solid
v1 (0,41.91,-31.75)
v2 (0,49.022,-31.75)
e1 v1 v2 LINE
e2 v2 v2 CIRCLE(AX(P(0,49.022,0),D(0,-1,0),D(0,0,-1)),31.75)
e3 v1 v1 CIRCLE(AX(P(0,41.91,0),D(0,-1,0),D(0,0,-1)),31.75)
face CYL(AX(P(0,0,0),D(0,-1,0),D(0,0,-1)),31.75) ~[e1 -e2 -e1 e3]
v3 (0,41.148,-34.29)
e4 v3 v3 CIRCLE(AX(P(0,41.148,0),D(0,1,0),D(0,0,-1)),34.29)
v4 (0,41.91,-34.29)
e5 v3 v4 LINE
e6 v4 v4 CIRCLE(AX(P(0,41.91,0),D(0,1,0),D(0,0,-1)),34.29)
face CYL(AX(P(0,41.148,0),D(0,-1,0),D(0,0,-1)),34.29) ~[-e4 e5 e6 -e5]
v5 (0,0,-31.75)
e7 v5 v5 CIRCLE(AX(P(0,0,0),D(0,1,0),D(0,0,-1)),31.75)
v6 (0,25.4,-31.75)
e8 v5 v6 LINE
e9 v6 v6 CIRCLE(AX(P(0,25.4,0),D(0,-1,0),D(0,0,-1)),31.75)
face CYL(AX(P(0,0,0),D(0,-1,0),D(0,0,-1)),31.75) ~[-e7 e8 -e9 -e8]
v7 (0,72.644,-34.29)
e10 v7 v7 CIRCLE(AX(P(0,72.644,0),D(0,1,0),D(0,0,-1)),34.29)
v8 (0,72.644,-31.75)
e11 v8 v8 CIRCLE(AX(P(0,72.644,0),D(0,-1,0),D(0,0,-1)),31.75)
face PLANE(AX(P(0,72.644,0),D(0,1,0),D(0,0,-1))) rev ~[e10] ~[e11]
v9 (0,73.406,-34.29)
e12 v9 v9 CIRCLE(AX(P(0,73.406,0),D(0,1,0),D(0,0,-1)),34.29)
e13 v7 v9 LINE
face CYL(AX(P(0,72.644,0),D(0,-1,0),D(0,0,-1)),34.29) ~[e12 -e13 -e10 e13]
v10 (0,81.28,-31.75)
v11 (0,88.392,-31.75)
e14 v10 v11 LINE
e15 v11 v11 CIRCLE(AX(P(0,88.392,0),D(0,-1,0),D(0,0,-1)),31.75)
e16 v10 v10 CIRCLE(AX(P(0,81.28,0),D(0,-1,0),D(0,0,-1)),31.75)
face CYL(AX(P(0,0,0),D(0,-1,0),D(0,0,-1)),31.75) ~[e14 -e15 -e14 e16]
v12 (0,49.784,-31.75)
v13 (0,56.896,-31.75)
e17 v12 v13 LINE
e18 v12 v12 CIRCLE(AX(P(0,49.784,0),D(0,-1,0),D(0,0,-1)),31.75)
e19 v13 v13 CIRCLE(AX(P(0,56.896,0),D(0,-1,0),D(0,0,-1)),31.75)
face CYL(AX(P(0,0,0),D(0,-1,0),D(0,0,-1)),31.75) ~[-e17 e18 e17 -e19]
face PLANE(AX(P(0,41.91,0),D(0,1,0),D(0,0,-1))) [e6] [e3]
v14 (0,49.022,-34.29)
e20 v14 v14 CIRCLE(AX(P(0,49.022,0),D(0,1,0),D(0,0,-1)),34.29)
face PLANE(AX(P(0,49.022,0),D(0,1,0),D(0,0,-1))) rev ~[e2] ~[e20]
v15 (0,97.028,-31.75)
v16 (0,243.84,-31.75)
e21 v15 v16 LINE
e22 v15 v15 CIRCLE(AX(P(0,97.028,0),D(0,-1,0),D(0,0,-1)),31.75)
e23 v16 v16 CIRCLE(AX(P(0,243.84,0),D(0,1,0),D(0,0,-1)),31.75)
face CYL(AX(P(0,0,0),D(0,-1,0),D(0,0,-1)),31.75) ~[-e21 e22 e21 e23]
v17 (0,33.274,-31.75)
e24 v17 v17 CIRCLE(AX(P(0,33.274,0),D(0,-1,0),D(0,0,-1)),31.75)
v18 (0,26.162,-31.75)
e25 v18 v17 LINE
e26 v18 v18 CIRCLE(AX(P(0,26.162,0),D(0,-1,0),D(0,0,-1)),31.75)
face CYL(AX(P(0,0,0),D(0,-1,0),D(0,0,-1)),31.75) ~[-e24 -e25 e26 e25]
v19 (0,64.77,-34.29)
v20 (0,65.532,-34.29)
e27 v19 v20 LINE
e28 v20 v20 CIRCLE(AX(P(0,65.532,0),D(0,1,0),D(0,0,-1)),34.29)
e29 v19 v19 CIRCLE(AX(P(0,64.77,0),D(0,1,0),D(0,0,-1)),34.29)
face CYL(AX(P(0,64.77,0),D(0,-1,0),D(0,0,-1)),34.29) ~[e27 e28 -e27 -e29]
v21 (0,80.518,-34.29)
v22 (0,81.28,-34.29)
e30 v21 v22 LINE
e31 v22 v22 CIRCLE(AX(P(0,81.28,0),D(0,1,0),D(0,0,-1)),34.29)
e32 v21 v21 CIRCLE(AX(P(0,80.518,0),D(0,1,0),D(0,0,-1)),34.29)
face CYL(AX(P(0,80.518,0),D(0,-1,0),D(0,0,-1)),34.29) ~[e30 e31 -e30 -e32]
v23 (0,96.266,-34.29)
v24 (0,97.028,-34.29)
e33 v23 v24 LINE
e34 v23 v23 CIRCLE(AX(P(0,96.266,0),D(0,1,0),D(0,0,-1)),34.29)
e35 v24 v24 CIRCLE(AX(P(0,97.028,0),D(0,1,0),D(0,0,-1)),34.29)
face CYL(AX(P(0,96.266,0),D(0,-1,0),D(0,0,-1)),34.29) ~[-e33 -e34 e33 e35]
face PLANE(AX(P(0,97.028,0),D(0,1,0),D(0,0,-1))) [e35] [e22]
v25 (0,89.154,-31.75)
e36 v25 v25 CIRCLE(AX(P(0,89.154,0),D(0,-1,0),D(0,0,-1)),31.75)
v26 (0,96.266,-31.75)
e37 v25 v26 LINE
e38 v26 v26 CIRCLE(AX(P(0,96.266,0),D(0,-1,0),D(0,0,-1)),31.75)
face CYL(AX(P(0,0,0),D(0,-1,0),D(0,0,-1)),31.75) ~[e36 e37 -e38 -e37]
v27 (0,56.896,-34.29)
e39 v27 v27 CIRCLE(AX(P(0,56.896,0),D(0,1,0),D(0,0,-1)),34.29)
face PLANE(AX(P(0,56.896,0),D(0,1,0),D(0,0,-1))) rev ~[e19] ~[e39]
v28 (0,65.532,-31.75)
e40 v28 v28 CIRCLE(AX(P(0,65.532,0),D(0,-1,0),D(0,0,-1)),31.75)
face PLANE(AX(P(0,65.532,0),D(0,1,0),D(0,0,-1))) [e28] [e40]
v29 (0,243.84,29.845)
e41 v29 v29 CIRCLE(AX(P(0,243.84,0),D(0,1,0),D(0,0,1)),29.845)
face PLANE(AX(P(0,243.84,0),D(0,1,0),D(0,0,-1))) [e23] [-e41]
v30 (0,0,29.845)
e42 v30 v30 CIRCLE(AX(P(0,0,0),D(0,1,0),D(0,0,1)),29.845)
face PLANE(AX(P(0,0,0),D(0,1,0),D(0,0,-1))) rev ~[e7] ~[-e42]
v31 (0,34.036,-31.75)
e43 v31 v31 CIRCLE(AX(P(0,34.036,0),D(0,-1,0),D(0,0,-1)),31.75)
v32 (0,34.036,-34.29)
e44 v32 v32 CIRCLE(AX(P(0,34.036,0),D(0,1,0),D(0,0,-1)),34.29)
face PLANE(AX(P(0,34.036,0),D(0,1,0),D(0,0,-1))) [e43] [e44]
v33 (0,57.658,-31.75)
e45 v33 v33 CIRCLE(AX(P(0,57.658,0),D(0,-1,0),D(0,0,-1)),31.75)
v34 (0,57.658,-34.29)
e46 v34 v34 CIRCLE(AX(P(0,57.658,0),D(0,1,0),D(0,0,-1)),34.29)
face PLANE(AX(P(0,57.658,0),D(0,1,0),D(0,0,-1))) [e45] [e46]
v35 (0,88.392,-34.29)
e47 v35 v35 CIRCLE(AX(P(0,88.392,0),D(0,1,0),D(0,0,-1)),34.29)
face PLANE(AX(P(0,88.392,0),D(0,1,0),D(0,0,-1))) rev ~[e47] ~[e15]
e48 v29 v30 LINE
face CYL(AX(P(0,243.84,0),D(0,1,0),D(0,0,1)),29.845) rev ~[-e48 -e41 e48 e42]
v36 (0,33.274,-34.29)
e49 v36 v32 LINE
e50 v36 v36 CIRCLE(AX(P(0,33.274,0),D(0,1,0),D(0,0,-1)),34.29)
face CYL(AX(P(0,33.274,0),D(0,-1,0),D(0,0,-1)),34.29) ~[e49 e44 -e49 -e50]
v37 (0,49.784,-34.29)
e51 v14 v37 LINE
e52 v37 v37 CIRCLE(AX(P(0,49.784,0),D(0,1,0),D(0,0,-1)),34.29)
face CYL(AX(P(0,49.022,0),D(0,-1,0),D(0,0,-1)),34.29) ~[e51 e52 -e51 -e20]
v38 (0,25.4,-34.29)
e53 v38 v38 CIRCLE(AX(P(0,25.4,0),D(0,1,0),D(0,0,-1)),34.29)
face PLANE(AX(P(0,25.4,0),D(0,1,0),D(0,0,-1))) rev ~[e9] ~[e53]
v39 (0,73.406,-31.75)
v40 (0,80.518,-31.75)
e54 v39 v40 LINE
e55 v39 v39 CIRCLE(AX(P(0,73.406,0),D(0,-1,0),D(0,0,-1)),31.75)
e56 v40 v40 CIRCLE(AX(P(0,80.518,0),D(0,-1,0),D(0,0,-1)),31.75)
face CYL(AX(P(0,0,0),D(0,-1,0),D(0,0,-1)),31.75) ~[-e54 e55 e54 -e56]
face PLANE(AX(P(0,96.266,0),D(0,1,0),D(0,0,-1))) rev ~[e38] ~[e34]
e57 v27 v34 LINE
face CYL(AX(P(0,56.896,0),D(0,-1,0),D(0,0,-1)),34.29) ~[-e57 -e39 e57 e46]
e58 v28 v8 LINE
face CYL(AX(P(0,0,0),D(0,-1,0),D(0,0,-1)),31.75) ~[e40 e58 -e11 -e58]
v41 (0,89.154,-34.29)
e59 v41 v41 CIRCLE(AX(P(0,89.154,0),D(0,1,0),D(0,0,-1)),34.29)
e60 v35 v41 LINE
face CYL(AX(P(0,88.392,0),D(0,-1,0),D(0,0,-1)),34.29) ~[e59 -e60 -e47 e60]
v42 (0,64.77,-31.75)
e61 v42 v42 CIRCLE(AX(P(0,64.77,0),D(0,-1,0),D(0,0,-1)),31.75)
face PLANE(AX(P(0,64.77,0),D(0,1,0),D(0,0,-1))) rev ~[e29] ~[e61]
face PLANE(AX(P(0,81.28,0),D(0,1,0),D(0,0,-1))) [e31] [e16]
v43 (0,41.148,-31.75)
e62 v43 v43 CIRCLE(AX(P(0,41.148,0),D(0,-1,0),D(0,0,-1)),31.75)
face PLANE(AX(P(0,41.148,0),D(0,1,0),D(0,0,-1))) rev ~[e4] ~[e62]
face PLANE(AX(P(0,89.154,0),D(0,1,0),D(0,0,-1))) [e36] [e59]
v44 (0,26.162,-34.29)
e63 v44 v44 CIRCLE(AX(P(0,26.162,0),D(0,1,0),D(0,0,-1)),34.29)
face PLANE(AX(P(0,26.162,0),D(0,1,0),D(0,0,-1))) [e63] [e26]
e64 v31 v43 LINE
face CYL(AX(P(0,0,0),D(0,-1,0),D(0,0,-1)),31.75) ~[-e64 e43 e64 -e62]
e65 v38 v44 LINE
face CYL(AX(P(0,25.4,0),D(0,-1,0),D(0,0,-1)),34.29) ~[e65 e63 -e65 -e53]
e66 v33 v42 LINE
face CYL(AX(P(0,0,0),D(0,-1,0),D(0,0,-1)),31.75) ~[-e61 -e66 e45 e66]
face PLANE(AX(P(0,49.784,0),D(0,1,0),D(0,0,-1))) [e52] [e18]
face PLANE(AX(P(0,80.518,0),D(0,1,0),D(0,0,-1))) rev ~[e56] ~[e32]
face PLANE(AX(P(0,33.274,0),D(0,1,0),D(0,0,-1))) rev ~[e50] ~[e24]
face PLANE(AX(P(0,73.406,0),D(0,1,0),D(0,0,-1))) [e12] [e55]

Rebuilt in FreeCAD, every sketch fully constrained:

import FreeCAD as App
import Part
import Sketcher
from FreeCAD import Vector
Q = App.Units.Quantity

doc = App.newDocument("Part")
params = doc.addObject("Spreadsheet::Sheet", "Params")
for row, (alias, value) in enumerate([
    ("sketch1_diameter", "2.5 in"),
    ("pad1_length", "9.6 in"),
    ("sketch2_diameter", "2.7 in"),
    ("pad2_length", "0.03 in"),
    ("linearpattern_pitch", "0.31 in"),
    ("sketch3_diameter", "2.35 in"),
], start=1):
    params.set(f"A{row}", alias)
    params.set(f"B{row}", "=" + value)
    params.setAlias(f"B{row}", alias)

body = doc.addObject("PartDesign::Body", "Body")

sketch1 = doc.addObject("Sketcher::SketchObject", "Sketch")
body.addObject(sketch1)
sketch1.AttachmentSupport = (doc.XZ_Plane, [""])
sketch1.MapMode = "FlatFace"
sketch1.addGeometry(Part.Circle(Vector(0, 0, 0), Vector(0, 0, 1), 32), False)
sketch1.addConstraint([
    Sketcher.Constraint("Coincident", 0, 3, -1, 1),
    Sketcher.Constraint("Diameter", 0, Q("2.5 in")),
])
sketch1.setExpression("Constraints[1]", "Params.sketch1_diameter")
pad1 = doc.addObject("PartDesign::Pad", "Pad")
body.addObject(pad1)
pad1.Profile = sketch1
pad1.setExpression("Length", "Params.pad1_length")
pad1.Reversed = True

sketch2 = doc.addObject("Sketcher::SketchObject", "Sketch001")
body.addObject(sketch2)
sketch2.AttachmentSupport = (doc.XZ_Plane, [""])
sketch2.MapMode = "FlatFace"
sketch2.AttachmentOffset = App.Placement(Vector(0, 0, -1 * 25.4), App.Rotation())
sketch2.addGeometry(Part.Circle(Vector(0, 0, 0), Vector(0, 0, 1), 34), False)
sketch2.addConstraint([
    Sketcher.Constraint("Coincident", 0, 3, -1, 1),
    Sketcher.Constraint("Diameter", 0, Q("2.7 in")),
])
sketch2.setExpression("Constraints[1]", "Params.sketch2_diameter")
pad2 = doc.addObject("PartDesign::Pad", "Pad001")
body.addObject(pad2)
pad2.Profile = sketch2
pad2.setExpression("Length", "Params.pad2_length")
pad2.Reversed = True
doc.recompute()

linearpattern = doc.addObject("PartDesign::LinearPattern", "LinearPattern")
body.addObject(linearpattern)
linearpattern.Originals = [pad2]
linearpattern.Direction = (doc.Y_Axis, [""])
linearpattern.Mode = "offset"
linearpattern.setExpression("Offset", "Params.linearpattern_pitch")
linearpattern.Occurrences = 10
body.Tip = linearpattern

sketch3 = doc.addObject("Sketcher::SketchObject", "Sketch002")
body.addObject(sketch3)
sketch3.AttachmentSupport = (doc.XZ_Plane, [""])
sketch3.MapMode = "FlatFace"
sketch3.AttachmentOffset = App.Placement(Vector(0, 0, -9.6 * 25.4), App.Rotation())
sketch3.addGeometry(Part.Circle(Vector(0, 0, 0), Vector(0, 0, 1), 30), False)
sketch3.addConstraint([
    Sketcher.Constraint("Coincident", 0, 3, -1, 1),
    Sketcher.Constraint("Diameter", 0, Q("2.35 in")),
])
sketch3.setExpression("Constraints[1]", "Params.sketch3_diameter")
pocket1 = doc.addObject("PartDesign::Pocket", "Pocket")
body.addObject(pocket1)
pocket1.Profile = sketch3
pocket1.Type = "ThroughAll"
pocket1.Reversed = True

doc.recompute()
